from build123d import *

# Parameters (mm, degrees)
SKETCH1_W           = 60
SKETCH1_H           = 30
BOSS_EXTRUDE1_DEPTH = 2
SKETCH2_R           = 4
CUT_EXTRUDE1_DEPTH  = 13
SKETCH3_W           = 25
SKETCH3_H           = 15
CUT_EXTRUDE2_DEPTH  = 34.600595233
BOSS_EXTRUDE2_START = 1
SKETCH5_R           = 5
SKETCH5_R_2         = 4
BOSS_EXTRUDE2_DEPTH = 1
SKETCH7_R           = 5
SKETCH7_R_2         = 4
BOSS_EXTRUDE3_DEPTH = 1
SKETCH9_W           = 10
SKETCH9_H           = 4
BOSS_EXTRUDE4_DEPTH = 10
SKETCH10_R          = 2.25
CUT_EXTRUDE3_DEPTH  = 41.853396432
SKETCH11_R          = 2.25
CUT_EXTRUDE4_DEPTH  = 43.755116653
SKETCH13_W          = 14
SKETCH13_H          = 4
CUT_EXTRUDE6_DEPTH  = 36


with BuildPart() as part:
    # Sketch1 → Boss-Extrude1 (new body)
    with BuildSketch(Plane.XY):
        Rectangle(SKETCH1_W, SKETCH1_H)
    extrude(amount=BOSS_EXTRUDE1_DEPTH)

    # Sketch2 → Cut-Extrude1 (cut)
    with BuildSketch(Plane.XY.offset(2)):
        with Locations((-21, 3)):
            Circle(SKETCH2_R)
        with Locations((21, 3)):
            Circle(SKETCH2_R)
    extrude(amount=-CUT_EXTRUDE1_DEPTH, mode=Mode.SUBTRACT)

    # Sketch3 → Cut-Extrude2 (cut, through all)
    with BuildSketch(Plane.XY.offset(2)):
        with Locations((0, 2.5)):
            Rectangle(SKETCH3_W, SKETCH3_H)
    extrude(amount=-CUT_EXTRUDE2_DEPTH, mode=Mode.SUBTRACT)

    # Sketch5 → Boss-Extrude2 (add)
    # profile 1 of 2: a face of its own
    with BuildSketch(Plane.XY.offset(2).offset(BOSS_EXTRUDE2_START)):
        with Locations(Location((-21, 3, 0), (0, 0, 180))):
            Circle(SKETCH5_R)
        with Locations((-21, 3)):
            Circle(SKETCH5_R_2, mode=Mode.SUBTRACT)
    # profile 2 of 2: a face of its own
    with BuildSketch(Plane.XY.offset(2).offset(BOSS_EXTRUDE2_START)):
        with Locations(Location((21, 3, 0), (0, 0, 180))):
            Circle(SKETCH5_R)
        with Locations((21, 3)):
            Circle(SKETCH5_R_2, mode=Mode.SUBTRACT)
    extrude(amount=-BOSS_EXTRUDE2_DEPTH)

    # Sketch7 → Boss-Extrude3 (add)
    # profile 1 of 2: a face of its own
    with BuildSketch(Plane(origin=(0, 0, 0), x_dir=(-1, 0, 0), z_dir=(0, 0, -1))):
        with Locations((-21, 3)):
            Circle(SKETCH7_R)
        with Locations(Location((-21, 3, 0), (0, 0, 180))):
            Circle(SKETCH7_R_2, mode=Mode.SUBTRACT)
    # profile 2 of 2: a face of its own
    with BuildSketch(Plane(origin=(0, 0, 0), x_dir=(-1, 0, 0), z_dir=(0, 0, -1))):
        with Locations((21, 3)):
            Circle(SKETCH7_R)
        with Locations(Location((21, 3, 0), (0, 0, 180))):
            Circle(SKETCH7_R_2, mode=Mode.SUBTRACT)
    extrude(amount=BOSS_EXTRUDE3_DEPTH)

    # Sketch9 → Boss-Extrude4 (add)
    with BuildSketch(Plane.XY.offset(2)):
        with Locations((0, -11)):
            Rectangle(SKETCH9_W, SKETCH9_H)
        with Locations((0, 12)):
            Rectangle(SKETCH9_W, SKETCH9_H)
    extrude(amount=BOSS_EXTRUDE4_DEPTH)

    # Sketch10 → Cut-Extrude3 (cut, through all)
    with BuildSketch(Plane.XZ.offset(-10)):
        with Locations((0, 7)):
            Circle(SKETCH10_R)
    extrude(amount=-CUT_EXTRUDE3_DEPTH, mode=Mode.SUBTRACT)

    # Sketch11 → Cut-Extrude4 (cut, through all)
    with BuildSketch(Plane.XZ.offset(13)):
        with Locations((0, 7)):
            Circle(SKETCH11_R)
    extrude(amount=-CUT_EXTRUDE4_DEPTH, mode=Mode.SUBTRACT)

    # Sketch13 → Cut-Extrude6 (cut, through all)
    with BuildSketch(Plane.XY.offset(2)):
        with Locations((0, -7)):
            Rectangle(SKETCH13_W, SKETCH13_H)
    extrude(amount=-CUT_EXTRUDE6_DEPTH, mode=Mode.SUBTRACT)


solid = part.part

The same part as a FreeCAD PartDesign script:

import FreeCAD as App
import Part
import Sketcher

V = App.Vector


def add_polygon(sketch, points):
    """Adds a closed chain of lines whose ends are joined by coincident constraints."""
    first, n = sketch.GeometryCount, len(points)
    for a, b in zip(points, points[1:] + points[:1]):
        sketch.addGeometry(Part.LineSegment(App.Vector(*a, 0), App.Vector(*b, 0)), False)
    for i in range(n):
        sketch.addConstraint(Sketcher.Constraint("Coincident", first + i, 2, first + (i + 1) % n, 1))

doc = App.newDocument("Part")
body = doc.addObject("PartDesign::Body", "Body")

# Sketch on XY plane
sketch1 = body.newObject("Sketcher::SketchObject", "Sketch")
sketch1.AttachmentSupport = (doc.getObject("XY_Plane"), [""])
sketch1.MapMode = "FlatFace"
add_polygon(sketch1, [(-30, 15), (-30, -15), (30, -15), (30, 15)])  # lines 0-3
sketch1.addConstraint(Sketcher.Constraint("Vertical", 0))
sketch1.addConstraint(Sketcher.Constraint("Horizontal", 1))
sketch1.addConstraint(Sketcher.Constraint("Vertical", 2))
sketch1.addConstraint(Sketcher.Constraint("Horizontal", 3))
sketch1.addConstraint(Sketcher.Constraint("Symmetric", 0, 2, 2, 2, -1, 1))
sketch1.addConstraint(Sketcher.Constraint("DistanceX", 1, 1, 1, 2, 60.0))
sketch1.addConstraint(Sketcher.Constraint("DistanceY", 0, 2, 0, 1, 30.0))
pad1 = body.newObject("PartDesign::Pad", "Pad")
pad1.Profile = sketch1
pad1.Length = 2

# Sketch on XY plane
sketch2 = body.newObject("Sketcher::SketchObject", "Sketch001")
sketch2.AttachmentSupport = (doc.getObject("XY_Plane"), [""])
sketch2.MapMode = "FlatFace"
sketch2.AttachmentOffset = App.Placement(V(0, 0, 2), App.Rotation())
sketch2.addGeometry(Part.Circle(V(-21, 3, 0), V(0, 0, 1), 4), False)
sketch2.addGeometry(Part.Circle(V(21, 3, 0), V(0, 0, 1), 4), False)
sketch2.addConstraint(Sketcher.Constraint("Equal", 0, 1))
sketch2.addConstraint(Sketcher.Constraint("Symmetric", 0, 3, 1, 3, -2))
sketch2.addConstraint(Sketcher.Constraint("Diameter", 0, 8.0))
sketch2.addConstraint(Sketcher.Constraint("DistanceX", 0, 3, -1, 1, 21.0))
sketch2.addConstraint(Sketcher.Constraint("DistanceY", -1, 1, 0, 3, 3.0))
pocket1 = body.newObject("PartDesign::Pocket", "Pocket")
pocket1.Profile = sketch2
pocket1.Length = 13

# Sketch on XY plane
sketch3 = body.newObject("Sketcher::SketchObject", "Sketch002")
sketch3.AttachmentSupport = (doc.getObject("XY_Plane"), [""])
sketch3.MapMode = "FlatFace"
sketch3.AttachmentOffset = App.Placement(V(0, 0, 2), App.Rotation())
add_polygon(sketch3, [(-12, 10), (-12, -5), (12, -5), (12, 10)])  # lines 0-3
sketch3.addConstraint(Sketcher.Constraint("Vertical", 0))
sketch3.addConstraint(Sketcher.Constraint("Horizontal", 1))
sketch3.addConstraint(Sketcher.Constraint("Vertical", 2))
sketch3.addConstraint(Sketcher.Constraint("Horizontal", 3))
sketch3.addConstraint(Sketcher.Constraint("DistanceX", 1, 1, 1, 2, 25.0))
sketch3.addConstraint(Sketcher.Constraint("DistanceY", 0, 2, 0, 1, 15.0))
sketch3.addConstraint(Sketcher.Constraint("DistanceY", 0, 2, -1, 1, 5.0))
sketch3.addConstraint(Sketcher.Constraint("DistanceX", 0, 2, -1, 1, 12.5))
pocket2 = body.newObject("PartDesign::Pocket", "Pocket001")
pocket2.Profile = sketch3
pocket2.Type = "ThroughAll"

# Sketch on XY plane
sketch4 = body.newObject("Sketcher::SketchObject", "Sketch003")
sketch4.AttachmentSupport = (doc.getObject("XY_Plane"), [""])
sketch4.MapMode = "FlatFace"
sketch4.AttachmentOffset = App.Placement(V(0, 0, 3), App.Rotation())
sketch4.addGeometry(Part.Circle(V(-21, 3, 0), V(0, 0, 1), 5), False)
sketch4.addGeometry(Part.Circle(V(-21, 3, 0), V(0, 0, 1), 4), False)
sketch4.addGeometry(Part.Circle(V(21, 3, 0), V(0, 0, 1), 5), False)
sketch4.addGeometry(Part.Circle(V(21, 3, 0), V(0, 0, 1), 4), False)
sketch4.addConstraint(Sketcher.Constraint("Coincident", 1, 3, 0, 3))
sketch4.addConstraint(Sketcher.Constraint("Coincident", 3, 3, 2, 3))
sketch4.addConstraint(Sketcher.Constraint("Equal", 0, 2))
sketch4.addConstraint(Sketcher.Constraint("Equal", 1, 3))
sketch4.addConstraint(Sketcher.Constraint("Symmetric", 0, 3, 2, 3, -2))
sketch4.addConstraint(Sketcher.Constraint("Diameter", 0, 10.0))
sketch4.addConstraint(Sketcher.Constraint("Diameter", 1, 8.0))
sketch4.addConstraint(Sketcher.Constraint("DistanceX", 0, 3, -1, 1, 21.0))
sketch4.addConstraint(Sketcher.Constraint("DistanceY", -1, 1, 0, 3, 3.0))
pad2 = body.newObject("PartDesign::Pad", "Pad001")
pad2.Profile = sketch4
pad2.Length = 1
pad2.Reversed = True

# Sketch on XY plane
sketch5 = body.newObject("Sketcher::SketchObject", "Sketch004")
sketch5.AttachmentSupport = (doc.getObject("XY_Plane"), [""])
sketch5.MapMode = "FlatFace"
sketch5.addGeometry(Part.Circle(V(21, 3, 0), V(0, 0, 1), 5), False)
sketch5.addGeometry(Part.Circle(V(21, 3, 0), V(0, 0, 1), 4), False)
sketch5.addGeometry(Part.Circle(V(-21, 3, 0), V(0, 0, 1), 5), False)
sketch5.addGeometry(Part.Circle(V(-21, 3, 0), V(0, 0, 1), 4), False)
sketch5.addConstraint(Sketcher.Constraint("Coincident", 1, 3, 0, 3))
sketch5.addConstraint(Sketcher.Constraint("Coincident", 3, 3, 2, 3))
sketch5.addConstraint(Sketcher.Constraint("Equal", 0, 2))
sketch5.addConstraint(Sketcher.Constraint("Equal", 1, 3))
sketch5.addConstraint(Sketcher.Constraint("Symmetric", 0, 3, 2, 3, -2))
sketch5.addConstraint(Sketcher.Constraint("Diameter", 0, 10.0))
sketch5.addConstraint(Sketcher.Constraint("Diameter", 1, 8.0))
sketch5.addConstraint(Sketcher.Constraint("DistanceX", -1, 1, 0, 3, 21.0))
sketch5.addConstraint(Sketcher.Constraint("DistanceY", -1, 1, 0, 3, 3.0))
pad3 = body.newObject("PartDesign::Pad", "Pad002")
pad3.Profile = sketch5
pad3.Length = 1
pad3.Reversed = True

# Sketch on XY plane
sketch6 = body.newObject("Sketcher::SketchObject", "Sketch005")
sketch6.AttachmentSupport = (doc.getObject("XY_Plane"), [""])
sketch6.MapMode = "FlatFace"
sketch6.AttachmentOffset = App.Placement(V(0, 0, 2), App.Rotation())
add_polygon(sketch6, [(-5, -9), (-5, -13), (5, -13), (5, -9)])  # lines 0-3
add_polygon(sketch6, [(-5, 14), (-5, 10), (5, 10), (5, 14)])  # lines 4-7
sketch6.addConstraint(Sketcher.Constraint("Vertical", 0))
sketch6.addConstraint(Sketcher.Constraint("Horizontal", 1))
sketch6.addConstraint(Sketcher.Constraint("Vertical", 2))
sketch6.addConstraint(Sketcher.Constraint("Horizontal", 3))
sketch6.addConstraint(Sketcher.Constraint("Vertical", 4))
sketch6.addConstraint(Sketcher.Constraint("Horizontal", 5))
sketch6.addConstraint(Sketcher.Constraint("Vertical", 6))
sketch6.addConstraint(Sketcher.Constraint("Horizontal", 7))
sketch6.addConstraint(Sketcher.Constraint("Vertical", 3, 2, 4, 2))
sketch6.addConstraint(Sketcher.Constraint("Vertical", 2, 2, 5, 2))
sketch6.addConstraint(Sketcher.Constraint("Equal", 2, 4))
sketch6.addConstraint(Sketcher.Constraint("DistanceX", 1, 1, 1, 2, 10.0))
sketch6.addConstraint(Sketcher.Constraint("DistanceY", 0, 2, 0, 1, 4.0))
sketch6.addConstraint(Sketcher.Constraint("DistanceX", 0, 2, -1, 1, 5.0))
sketch6.addConstraint(Sketcher.Constraint("DistanceY", 0, 2, -1, 1, 13.0))
sketch6.addConstraint(Sketcher.Constraint("DistanceY", -1, 1, 4, 2, 10.0))
pad4 = body.newObject("PartDesign::Pad", "Pad003")
pad4.Profile = sketch6
pad4.Length = 10

# Sketch on XZ plane
sketch7 = body.newObject("Sketcher::SketchObject", "Sketch006")
sketch7.AttachmentSupport = (doc.getObject("XZ_Plane"), [""])
sketch7.MapMode = "FlatFace"
sketch7.AttachmentOffset = App.Placement(V(0, 0, -10), App.Rotation())
sketch7.addGeometry(Part.Circle(V(0, 7, 0), V(0, 0, 1), 2.2), False)
sketch7.addConstraint(Sketcher.Constraint("PointOnObject", 0, 3, -2))
sketch7.addConstraint(Sketcher.Constraint("Diameter", 0, 4.5))
sketch7.addConstraint(Sketcher.Constraint("DistanceY", -1, 1, 0, 3, 7.0))
pocket3 = body.newObject("PartDesign::Pocket", "Pocket002")
pocket3.Profile = sketch7
pocket3.Type = "ThroughAll"

# Sketch on XZ plane
sketch8 = body.newObject("Sketcher::SketchObject", "Sketch007")
sketch8.AttachmentSupport = (doc.getObject("XZ_Plane"), [""])
sketch8.MapMode = "FlatFace"
sketch8.AttachmentOffset = App.Placement(V(0, 0, 13), App.Rotation())
sketch8.addGeometry(Part.Circle(V(0, 7, 0), V(0, 0, 1), 2.2), False)
sketch8.addConstraint(Sketcher.Constraint("PointOnObject", 0, 3, -2))
sketch8.addConstraint(Sketcher.Constraint("Diameter", 0, 4.5))
sketch8.addConstraint(Sketcher.Constraint("DistanceY", -1, 1, 0, 3, 7.0))
pocket4 = body.newObject("PartDesign::Pocket", "Pocket003")
pocket4.Profile = sketch8
pocket4.Type = "ThroughAll"

# Sketch on XY plane
sketch9 = body.newObject("Sketcher::SketchObject", "Sketch008")
sketch9.AttachmentSupport = (doc.getObject("XY_Plane"), [""])
sketch9.MapMode = "FlatFace"
sketch9.AttachmentOffset = App.Placement(V(0, 0, 2), App.Rotation())
add_polygon(sketch9, [(-7, -5), (-7, -9), (7, -9), (7, -5)])  # lines 0-3
sketch9.addConstraint(Sketcher.Constraint("Vertical", 0))
sketch9.addConstraint(Sketcher.Constraint("Horizontal", 1))
sketch9.addConstraint(Sketcher.Constraint("Vertical", 2))
sketch9.addConstraint(Sketcher.Constraint("Horizontal", 3))
sketch9.addConstraint(Sketcher.Constraint("DistanceX", 1, 1, 1, 2, 14.0))
sketch9.addConstraint(Sketcher.Constraint("DistanceY", 0, 2, 0, 1, 4.0))
sketch9.addConstraint(Sketcher.Constraint("DistanceX", 0, 2, -1, 1, 7.0))
sketch9.addConstraint(Sketcher.Constraint("DistanceY", 0, 2, -1, 1, 9.0))
pocket5 = body.newObject("PartDesign::Pocket", "Pocket004")
pocket5.Profile = sketch9
pocket5.Type = "ThroughAll"

doc.recompute()
